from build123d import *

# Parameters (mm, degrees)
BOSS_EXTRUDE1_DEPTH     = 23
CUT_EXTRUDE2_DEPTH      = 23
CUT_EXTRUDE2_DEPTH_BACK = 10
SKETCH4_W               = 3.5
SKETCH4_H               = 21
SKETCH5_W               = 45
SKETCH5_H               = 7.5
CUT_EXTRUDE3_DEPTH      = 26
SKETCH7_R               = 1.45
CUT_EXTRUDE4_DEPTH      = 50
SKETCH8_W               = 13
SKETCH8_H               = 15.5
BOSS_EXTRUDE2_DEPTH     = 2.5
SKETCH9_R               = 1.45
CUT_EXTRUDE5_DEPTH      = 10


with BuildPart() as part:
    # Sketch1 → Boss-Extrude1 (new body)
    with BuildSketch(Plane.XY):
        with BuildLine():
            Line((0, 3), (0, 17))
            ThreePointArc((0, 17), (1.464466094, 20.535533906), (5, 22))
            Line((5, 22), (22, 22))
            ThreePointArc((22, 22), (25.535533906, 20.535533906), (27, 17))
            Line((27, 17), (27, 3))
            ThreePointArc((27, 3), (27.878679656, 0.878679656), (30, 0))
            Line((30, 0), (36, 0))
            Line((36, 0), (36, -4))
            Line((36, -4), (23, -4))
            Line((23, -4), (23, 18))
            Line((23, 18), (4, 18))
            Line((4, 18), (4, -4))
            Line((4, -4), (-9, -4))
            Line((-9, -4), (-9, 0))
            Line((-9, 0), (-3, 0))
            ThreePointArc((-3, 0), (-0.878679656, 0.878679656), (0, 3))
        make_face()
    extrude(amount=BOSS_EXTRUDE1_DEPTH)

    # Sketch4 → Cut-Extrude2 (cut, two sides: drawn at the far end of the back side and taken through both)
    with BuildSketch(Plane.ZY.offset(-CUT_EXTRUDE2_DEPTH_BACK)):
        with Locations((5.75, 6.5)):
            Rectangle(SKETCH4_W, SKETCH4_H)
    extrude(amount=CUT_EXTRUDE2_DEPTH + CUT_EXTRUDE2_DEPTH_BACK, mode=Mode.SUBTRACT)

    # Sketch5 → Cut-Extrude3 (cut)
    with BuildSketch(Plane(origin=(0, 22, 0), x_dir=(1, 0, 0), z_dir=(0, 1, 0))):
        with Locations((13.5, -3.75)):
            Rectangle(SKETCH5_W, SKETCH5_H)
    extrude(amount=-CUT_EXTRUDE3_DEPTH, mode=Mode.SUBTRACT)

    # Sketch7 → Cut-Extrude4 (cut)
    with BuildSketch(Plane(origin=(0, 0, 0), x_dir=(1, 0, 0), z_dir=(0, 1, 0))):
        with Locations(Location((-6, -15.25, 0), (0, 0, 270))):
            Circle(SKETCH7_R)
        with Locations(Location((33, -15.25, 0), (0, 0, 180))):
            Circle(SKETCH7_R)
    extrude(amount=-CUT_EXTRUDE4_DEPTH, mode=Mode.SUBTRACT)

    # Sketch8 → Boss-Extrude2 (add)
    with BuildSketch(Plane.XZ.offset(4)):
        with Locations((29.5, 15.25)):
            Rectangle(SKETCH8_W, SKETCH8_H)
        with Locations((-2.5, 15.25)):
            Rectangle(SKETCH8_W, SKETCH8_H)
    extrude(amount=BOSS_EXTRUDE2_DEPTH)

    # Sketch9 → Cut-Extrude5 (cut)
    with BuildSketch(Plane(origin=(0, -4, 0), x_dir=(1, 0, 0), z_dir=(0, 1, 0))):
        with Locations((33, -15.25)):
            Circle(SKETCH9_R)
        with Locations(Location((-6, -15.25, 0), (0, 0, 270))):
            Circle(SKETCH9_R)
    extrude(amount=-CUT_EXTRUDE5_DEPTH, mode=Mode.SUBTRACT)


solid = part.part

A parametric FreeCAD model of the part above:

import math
import FreeCAD as App
import Part
import Sketcher

V = App.Vector


def add_polygon(sketch, points):
    """Adds a closed chain of lines whose ends are joined by coincident constraints."""
    first, n = sketch.GeometryCount, len(points)
    for a, b in zip(points, points[1:] + points[:1]):
        sketch.addGeometry(Part.LineSegment(App.Vector(*a, 0), App.Vector(*b, 0)), False)
    for i in range(n):
        sketch.addConstraint(Sketcher.Constraint("Coincident", first + i, 2, first + (i + 1) % n, 1))

doc = App.newDocument("Part")
body = doc.addObject("PartDesign::Body", "Body")

# Sketch on XY plane
sketch1 = doc.addObject("Sketcher::SketchObject", "Sketch")
body.addObject(sketch1)
sketch1.AttachmentSupport = (doc.XY_Plane, [""])
sketch1.MapMode = "FlatFace"
sketch1.addGeometry([
    Part.LineSegment(V(0, 17, 0), V(0, 3, 0)),  # 0
    Part.ArcOfCircle(Part.Circle(V(-3, 3, 0), V(0, 0, 1), 3), math.radians(-90), math.radians(0)),  # 1
    Part.LineSegment(V(-3, 0, 0), V(-9, 0, 0)),  # 2
    Part.LineSegment(V(-9, 0, 0), V(-9, -4, 0)),  # 3
    Part.LineSegment(V(-9, -4, 0), V(4, -4, 0)),  # 4
    Part.LineSegment(V(4, -4, 0), V(4, 18, 0)),  # 5
    Part.LineSegment(V(4, 18, 0), V(23, 18, 0)),  # 6
    Part.LineSegment(V(23, 18, 0), V(23, -4, 0)),  # 7
    Part.LineSegment(V(23, -4, 0), V(36, -4, 0)),  # 8
    Part.LineSegment(V(36, -4, 0), V(36, 0, 0)),  # 9
    Part.LineSegment(V(36, 0, 0), V(30, 0, 0)),  # 10
    Part.ArcOfCircle(Part.Circle(V(30, 3, 0), V(0, 0, 1), 3), math.radians(180), math.radians(270)),  # 11
    Part.LineSegment(V(27, 3, 0), V(27, 17, 0)),  # 12
    Part.ArcOfCircle(Part.Circle(V(22, 17, 0), V(0, 0, 1), 5), math.radians(0), math.radians(90)),  # 13
    Part.LineSegment(V(22, 22, 0), V(5, 22, 0)),  # 14
    Part.ArcOfCircle(Part.Circle(V(5, 17, 0), V(0, 0, 1), 5), math.radians(90), math.radians(180)),  # 15
], False)
sketch1.addConstraint([
    Sketcher.Constraint("Tangent", 0, 2, 1, 2),
    Sketcher.Constraint("Tangent", 1, 1, 2, 1),
    Sketcher.Constraint("Coincident", 2, 2, 3, 1),
    Sketcher.Constraint("Coincident", 3, 2, 4, 1),
    Sketcher.Constraint("Coincident", 4, 2, 5, 1),
    Sketcher.Constraint("Coincident", 5, 2, 6, 1),
    Sketcher.Constraint("Coincident", 6, 2, 7, 1),
    Sketcher.Constraint("Coincident", 7, 2, 8, 1),
    Sketcher.Constraint("Coincident", 8, 2, 9, 1),
    Sketcher.Constraint("Coincident", 9, 2, 10, 1),
    Sketcher.Constraint("Tangent", 10, 2, 11, 2),
    Sketcher.Constraint("Tangent", 11, 1, 12, 1),
    Sketcher.Constraint("Tangent", 12, 2, 13, 1),
    Sketcher.Constraint("Tangent", 13, 2, 14, 1),
    Sketcher.Constraint("Tangent", 14, 2, 15, 1),
    Sketcher.Constraint("Tangent", 15, 2, 0, 1),
    Sketcher.Constraint("Vertical", 0),
    Sketcher.Constraint("Horizontal", 2),
    Sketcher.Constraint("Vertical", 3),
    Sketcher.Constraint("Horizontal", 4),
    Sketcher.Constraint("Vertical", 5),
    Sketcher.Constraint("Horizontal", 6),
    Sketcher.Constraint("Vertical", 7),
    Sketcher.Constraint("Horizontal", 8),
    Sketcher.Constraint("Vertical", 9),
    Sketcher.Constraint("Horizontal", 10),
    Sketcher.Constraint("Vertical", 12),
    Sketcher.Constraint("Horizontal", 14),
    Sketcher.Constraint("Equal", 1, 11),
    Sketcher.Constraint("Equal", 13, 15),
    Sketcher.Constraint("PointOnObject", 0, 2, -2),
    Sketcher.Constraint("PointOnObject", 1, 1, -1),
    Sketcher.Constraint("PointOnObject", 9, 2, -1),
    Sketcher.Constraint("Horizontal", 4, 2, 7, 2),
    Sketcher.Constraint("Equal", 4, 8),
    Sketcher.Constraint("Equal", 2, 10),
    Sketcher.Constraint("Radius", 1, 3.0),
    Sketcher.Constraint("Radius", 13, 5.0),
    Sketcher.Constraint("DistanceX", 2, 2, 2, 1, 6.0),
    Sketcher.Constraint("DistanceX", 4, 1, 4, 2, 13.0),
    Sketcher.Constraint("DistanceX", 6, 1, 6, 2, 19.0),
    Sketcher.Constraint("DistanceY", 0, 2, 0, 1, 14.0),
    Sketcher.Constraint("DistanceY", 3, 2, 3, 1, 4.0),
    Sketcher.Constraint("DistanceY", 5, 1, 5, 2, 22.0),
])
pad1 = doc.addObject("PartDesign::Pad", "Pad")
body.addObject(pad1)
pad1.Profile = sketch1
pad1.Length = 23

# Sketch on YZ plane
sketch2 = doc.addObject("Sketcher::SketchObject", "Sketch001")
body.addObject(sketch2)
sketch2.AttachmentSupport = (doc.YZ_Plane, [""])
sketch2.MapMode = "FlatFace"
add_polygon(sketch2, [(17, 4), (-4, 4), (-4, 7.5), (17, 7.5)])  # lines 0-3
sketch2.addConstraint([
    Sketcher.Constraint("Horizontal", 0),
    Sketcher.Constraint("Vertical", 1),
    Sketcher.Constraint("Horizontal", 2),
    Sketcher.Constraint("Vertical", 3),
    Sketcher.Constraint("DistanceX", 0, 2, 0, 1, 21.0),
    Sketcher.Constraint("DistanceY", 1, 1, 1, 2, 3.5),
    Sketcher.Constraint("DistanceX", 0, 2, -1, 1, 4.0),
    Sketcher.Constraint("DistanceY", -1, 1, 0, 2, 4.0),
])
pocket1 = doc.addObject("PartDesign::Pocket", "Pocket")
body.addObject(pocket1)
pocket1.Profile = sketch2
pocket1.Type = "TwoLengths"
pocket1.Length = 23
pocket1.Length2 = 10

# Sketch on XZ plane
sketch3 = doc.addObject("Sketcher::SketchObject", "Sketch002")
body.addObject(sketch3)
sketch3.AttachmentSupport = (doc.XZ_Plane, [""])
sketch3.MapMode = "FlatFace"
sketch3.AttachmentOffset = App.Placement(V(0, 0, -22), App.Rotation())
add_polygon(sketch3, [(-9, 0), (-9, 8), (36, 8), (36, 0)])  # lines 0-3
sketch3.addConstraint([
    Sketcher.Constraint("Vertical", 0),
    Sketcher.Constraint("Horizontal", 1),
    Sketcher.Constraint("Vertical", 2),
    Sketcher.Constraint("Horizontal", 3),
    Sketcher.Constraint("PointOnObject", 2, 2, -1),
    Sketcher.Constraint("DistanceX", 1, 1, 1, 2, 45.0),
    Sketcher.Constraint("DistanceY", 0, 1, 0, 2, 7.5),
    Sketcher.Constraint("DistanceX", 0, 2, -1, 1, 9.0),
])
pocket2 = doc.addObject("PartDesign::Pocket", "Pocket001")
body.addObject(pocket2)
pocket2.Profile = sketch3
pocket2.Length = 26
pocket2.Reversed = True

# Sketch on XZ plane
sketch4 = doc.addObject("Sketcher::SketchObject", "Sketch003")
body.addObject(sketch4)
sketch4.AttachmentSupport = (doc.XZ_Plane, [""])
sketch4.MapMode = "FlatFace"
sketch4.addGeometry([
    Part.Circle(V(-6, 15.2, 0), V(0, 0, 1), 1.4),
    Part.Circle(V(33, 15.2, 0), V(0, 0, 1), 1.4),
], False)
sketch4.addConstraint([
    Sketcher.Constraint("Equal", 0, 1),
    Sketcher.Constraint("Horizontal", 0, 3, 1, 3),
    Sketcher.Constraint("Diameter", 0, 2.9),
    Sketcher.Constraint("DistanceX", 0, 3, -1, 1, 6.0),
    Sketcher.Constraint("DistanceX", -1, 1, 1, 3, 33.0),
    Sketcher.Constraint("DistanceY", -1, 1, 0, 3, 15.25),
])
pocket3 = doc.addObject("PartDesign::Pocket", "Pocket002")
body.addObject(pocket3)
pocket3.Profile = sketch4
pocket3.Length = 50
pocket3.Reversed = True

# Sketch on XZ plane
sketch5 = doc.addObject("Sketcher::SketchObject", "Sketch004")
body.addObject(sketch5)
sketch5.AttachmentSupport = (doc.XZ_Plane, [""])
sketch5.MapMode = "FlatFace"
sketch5.AttachmentOffset = App.Placement(V(0, 0, 4), App.Rotation())
add_polygon(sketch5, [(23, 23), (23, 8), (36, 8), (36, 23)])  # lines 0-3
add_polygon(sketch5, [(-9, 23), (-9, 8), (4, 8), (4, 23)])  # lines 4-7
sketch5.addConstraint([
    Sketcher.Constraint("Vertical", 0),
    Sketcher.Constraint("Horizontal", 1),
    Sketcher.Constraint("Vertical", 2),
    Sketcher.Constraint("Horizontal", 3),
    Sketcher.Constraint("Vertical", 4),
    Sketcher.Constraint("Horizontal", 5),
    Sketcher.Constraint("Vertical", 6),
    Sketcher.Constraint("Horizontal", 7),
    Sketcher.Constraint("Horizontal", 1, 2, 4, 2),
    Sketcher.Constraint("Horizontal", 3, 2, 6, 2),
    Sketcher.Constraint("Equal", 3, 5),
    Sketcher.Constraint("DistanceX", 1, 1, 1, 2, 13.0),
    Sketcher.Constraint("DistanceY", 0, 2, 0, 1, 15.5),
    Sketcher.Constraint("DistanceX", -1, 1, 0, 2, 23.0),
    Sketcher.Constraint("DistanceY", -1, 1, 2, 2, 23.0),
    Sketcher.Constraint("DistanceX", 4, 2, -1, 1, 9.0),
])
pad2 = doc.addObject("PartDesign::Pad", "Pad001")
body.addObject(pad2)
pad2.Profile = sketch5
pad2.Length = 2.5

# Sketch on XZ plane
sketch6 = doc.addObject("Sketcher::SketchObject", "Sketch005")
body.addObject(sketch6)
sketch6.AttachmentSupport = (doc.XZ_Plane, [""])
sketch6.MapMode = "FlatFace"
sketch6.AttachmentOffset = App.Placement(V(0, 0, 4), App.Rotation())
sketch6.addGeometry([
    Part.Circle(V(33, 15.2, 0), V(0, 0, 1), 1.4),
    Part.Circle(V(-6, 15.2, 0), V(0, 0, 1), 1.4),
], False)
sketch6.addConstraint([
    Sketcher.Constraint("Equal", 0, 1),
    Sketcher.Constraint("Horizontal", 0, 3, 1, 3),
    Sketcher.Constraint("Diameter", 0, 2.9),
    Sketcher.Constraint("DistanceX", -1, 1, 0, 3, 33.0),
    Sketcher.Constraint("DistanceX", 1, 3, -1, 1, 6.0),
    Sketcher.Constraint("DistanceY", -1, 1, 0, 3, 15.25),
])
pocket4 = doc.addObject("PartDesign::Pocket", "Pocket003")
body.addObject(pocket4)
pocket4.Profile = sketch6
pocket4.Length = 10
pocket4.Reversed = True

doc.recompute()
